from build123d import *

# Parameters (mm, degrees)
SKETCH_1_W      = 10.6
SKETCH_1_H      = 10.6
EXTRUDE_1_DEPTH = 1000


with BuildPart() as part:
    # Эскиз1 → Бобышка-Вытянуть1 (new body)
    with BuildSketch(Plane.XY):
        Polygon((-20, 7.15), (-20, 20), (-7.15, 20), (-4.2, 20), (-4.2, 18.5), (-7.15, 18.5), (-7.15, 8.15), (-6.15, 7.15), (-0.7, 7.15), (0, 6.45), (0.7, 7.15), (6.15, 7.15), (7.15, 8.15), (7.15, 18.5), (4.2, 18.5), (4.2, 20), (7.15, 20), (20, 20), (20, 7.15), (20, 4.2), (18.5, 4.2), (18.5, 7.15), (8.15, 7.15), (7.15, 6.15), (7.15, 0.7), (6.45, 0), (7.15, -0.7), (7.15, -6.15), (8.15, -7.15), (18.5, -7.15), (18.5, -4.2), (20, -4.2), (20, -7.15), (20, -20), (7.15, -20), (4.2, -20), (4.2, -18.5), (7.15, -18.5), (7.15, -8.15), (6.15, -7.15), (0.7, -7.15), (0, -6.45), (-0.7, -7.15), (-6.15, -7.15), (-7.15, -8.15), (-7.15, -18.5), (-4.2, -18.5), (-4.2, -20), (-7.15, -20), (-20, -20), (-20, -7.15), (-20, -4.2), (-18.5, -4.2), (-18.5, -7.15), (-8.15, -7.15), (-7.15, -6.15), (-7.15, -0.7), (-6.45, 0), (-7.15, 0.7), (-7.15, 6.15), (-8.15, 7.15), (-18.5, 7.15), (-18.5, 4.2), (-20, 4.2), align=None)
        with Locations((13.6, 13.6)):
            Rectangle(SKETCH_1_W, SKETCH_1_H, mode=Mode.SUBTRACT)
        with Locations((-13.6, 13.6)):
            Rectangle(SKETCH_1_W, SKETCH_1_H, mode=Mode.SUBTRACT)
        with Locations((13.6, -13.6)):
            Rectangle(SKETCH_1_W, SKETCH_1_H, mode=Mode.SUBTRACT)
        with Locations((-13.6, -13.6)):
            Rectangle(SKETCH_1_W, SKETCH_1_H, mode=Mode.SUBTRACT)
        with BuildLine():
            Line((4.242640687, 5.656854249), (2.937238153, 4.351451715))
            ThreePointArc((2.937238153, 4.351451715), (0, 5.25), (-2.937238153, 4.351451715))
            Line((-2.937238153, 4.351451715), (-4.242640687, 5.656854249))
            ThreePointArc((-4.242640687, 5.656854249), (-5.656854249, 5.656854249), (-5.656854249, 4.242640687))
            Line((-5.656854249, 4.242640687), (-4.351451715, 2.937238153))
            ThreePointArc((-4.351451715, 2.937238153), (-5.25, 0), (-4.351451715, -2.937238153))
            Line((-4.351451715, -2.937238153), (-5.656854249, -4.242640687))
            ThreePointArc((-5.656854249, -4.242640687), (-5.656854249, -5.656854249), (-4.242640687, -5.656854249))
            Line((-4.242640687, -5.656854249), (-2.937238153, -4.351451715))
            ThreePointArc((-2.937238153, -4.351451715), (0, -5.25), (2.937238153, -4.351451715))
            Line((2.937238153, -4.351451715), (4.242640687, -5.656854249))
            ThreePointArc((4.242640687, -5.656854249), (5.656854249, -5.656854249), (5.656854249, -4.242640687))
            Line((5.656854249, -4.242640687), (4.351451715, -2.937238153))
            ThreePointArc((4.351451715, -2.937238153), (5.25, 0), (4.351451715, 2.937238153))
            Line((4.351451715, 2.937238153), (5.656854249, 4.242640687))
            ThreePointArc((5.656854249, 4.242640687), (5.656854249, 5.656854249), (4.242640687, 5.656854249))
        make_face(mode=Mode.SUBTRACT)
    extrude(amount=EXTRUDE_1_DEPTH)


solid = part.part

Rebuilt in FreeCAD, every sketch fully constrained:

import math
import FreeCAD as App
import Part
import Sketcher

V = App.Vector
Q = App.Units.Quantity

doc = App.newDocument("Part")
body = doc.addObject("PartDesign::Body", "Body")

# Sketch on XY plane
sketch1 = body.newObject("Sketcher::SketchObject", "Sketch")
sketch1.AttachmentSupport = (doc.getObject("XY_Plane"), [""])
sketch1.MapMode = "FlatFace"
sketch1.addGeometry([
    Part.LineSegment(V(-20, 20, 0), V(-20, 4.2, 0)),  # 0
    Part.LineSegment(V(-20, 4.2, 0), V(-18.5, 4.2, 0)),  # 1
    Part.LineSegment(V(-18.5, 4.2, 0), V(-18.5, 7.2, 0)),  # 2
    Part.LineSegment(V(-18.5, 7.2, 0), V(-8.2, 7.2, 0)),  # 3
    Part.LineSegment(V(-8.2, 7.2, 0), V(-7.2, 6.2, 0)),  # 4
    Part.LineSegment(V(-7.2, 6.2, 0), V(-7.2, 0.7, 0)),  # 5
    Part.LineSegment(V(-7.2, 0.7, 0), V(-6.5, 0, 0)),  # 6
    Part.LineSegment(V(-6.5, 0, 0), V(-7.2, -0.7, 0)),  # 7
    Part.LineSegment(V(-7.2, -0.7, 0), V(-7.2, -6.2, 0)),  # 8
    Part.LineSegment(V(-7.2, -6.2, 0), V(-8.2, -7.2, 0)),  # 9
    Part.LineSegment(V(-8.2, -7.2, 0), V(-18.5, -7.2, 0)),  # 10
    Part.LineSegment(V(-18.5, -7.2, 0), V(-18.5, -4.2, 0)),  # 11
    Part.LineSegment(V(-18.5, -4.2, 0), V(-20, -4.2, 0)),  # 12
    Part.LineSegment(V(-20, -4.2, 0), V(-20, -20, 0)),  # 13
    Part.LineSegment(V(-20, -20, 0), V(-4.2, -20, 0)),  # 14
    Part.LineSegment(V(-4.2, -20, 0), V(-4.2, -18.5, 0)),  # 15
    Part.LineSegment(V(-4.2, -18.5, 0), V(-7.2, -18.5, 0)),  # 16
    Part.LineSegment(V(-7.2, -18.5, 0), V(-7.2, -8.2, 0)),  # 17
    Part.LineSegment(V(-7.2, -8.2, 0), V(-6.2, -7.2, 0)),  # 18
    Part.LineSegment(V(-6.2, -7.2, 0), V(-0.7, -7.2, 0)),  # 19
    Part.LineSegment(V(-0.7, -7.2, 0), V(0, -6.5, 0)),  # 20
    Part.LineSegment(V(0, -6.5, 0), V(0.7, -7.2, 0)),  # 21
    Part.LineSegment(V(0.7, -7.2, 0), V(6.2, -7.2, 0)),  # 22
    Part.LineSegment(V(6.2, -7.2, 0), V(7.2, -8.2, 0)),  # 23
    Part.LineSegment(V(7.2, -8.2, 0), V(7.2, -18.5, 0)),  # 24
    Part.LineSegment(V(7.2, -18.5, 0), V(4.2, -18.5, 0)),  # 25
    Part.LineSegment(V(4.2, -18.5, 0), V(4.2, -20, 0)),  # 26
    Part.LineSegment(V(4.2, -20, 0), V(20, -20, 0)),  # 27
    Part.LineSegment(V(20, -20, 0), V(20, -4.2, 0)),  # 28
    Part.LineSegment(V(20, -4.2, 0), V(18.5, -4.2, 0)),  # 29
    Part.LineSegment(V(18.5, -4.2, 0), V(18.5, -7.2, 0)),  # 30
    Part.LineSegment(V(18.5, -7.2, 0), V(8.2, -7.2, 0)),  # 31
    Part.LineSegment(V(8.2, -7.2, 0), V(7.2, -6.2, 0)),  # 32
    Part.LineSegment(V(7.2, -6.2, 0), V(7.2, -0.7, 0)),  # 33
    Part.LineSegment(V(7.2, -0.7, 0), V(6.5, 0, 0)),  # 34
    Part.LineSegment(V(6.5, 0, 0), V(7.2, 0.7, 0)),  # 35
    Part.LineSegment(V(7.2, 0.7, 0), V(7.2, 6.2, 0)),  # 36
    Part.LineSegment(V(7.2, 6.2, 0), V(8.2, 7.2, 0)),  # 37
    Part.LineSegment(V(8.2, 7.2, 0), V(18.5, 7.2, 0)),  # 38
    Part.LineSegment(V(18.5, 7.2, 0), V(18.5, 4.2, 0)),  # 39
    Part.LineSegment(V(18.5, 4.2, 0), V(20, 4.2, 0)),  # 40
    Part.LineSegment(V(20, 4.2, 0), V(20, 20, 0)),  # 41
    Part.LineSegment(V(20, 20, 0), V(4.2, 20, 0)),  # 42
    Part.LineSegment(V(4.2, 20, 0), V(4.2, 18.5, 0)),  # 43
    Part.LineSegment(V(4.2, 18.5, 0), V(7.2, 18.5, 0)),  # 44
    Part.LineSegment(V(7.2, 18.5, 0), V(7.2, 8.2, 0)),  # 45
    Part.LineSegment(V(7.2, 8.2, 0), V(6.2, 7.2, 0)),  # 46
    Part.LineSegment(V(6.2, 7.2, 0), V(0.7, 7.2, 0)),  # 47
    Part.LineSegment(V(0.7, 7.2, 0), V(0, 6.5, 0)),  # 48
    Part.LineSegment(V(0, 6.5, 0), V(-0.7, 7.2, 0)),  # 49
    Part.LineSegment(V(-0.7, 7.2, 0), V(-6.2, 7.2, 0)),  # 50
    Part.LineSegment(V(-6.2, 7.2, 0), V(-7.2, 8.2, 0)),  # 51
    Part.LineSegment(V(-7.2, 8.2, 0), V(-7.2, 18.5, 0)),  # 52
    Part.LineSegment(V(-7.2, 18.5, 0), V(-4.2, 18.5, 0)),  # 53
    Part.LineSegment(V(-4.2, 18.5, 0), V(-4.2, 20, 0)),  # 54
    Part.LineSegment(V(-4.2, 20, 0), V(-20, 20, 0)),  # 55
    Part.LineSegment(V(8.3, -18.9, 0), V(8.3, -8.3, 0)),  # 56
    Part.LineSegment(V(8.3, -8.3, 0), V(18.9, -8.3, 0)),  # 57
    Part.LineSegment(V(18.9, -8.3, 0), V(18.9, -18.9, 0)),  # 58
    Part.LineSegment(V(18.9, -18.9, 0), V(8.3, -18.9, 0)),  # 59
    Part.LineSegment(V(-18.9, -18.9, 0), V(-18.9, -8.3, 0)),  # 60
    Part.LineSegment(V(-18.9, -8.3, 0), V(-8.3, -8.3, 0)),  # 61
    Part.LineSegment(V(-8.3, -8.3, 0), V(-8.3, -18.9, 0)),  # 62
    Part.LineSegment(V(-8.3, -18.9, 0), V(-18.9, -18.9, 0)),  # 63
    Part.LineSegment(V(8.3, 8.3, 0), V(8.3, 18.9, 0)),  # 64
    Part.LineSegment(V(8.3, 18.9, 0), V(18.9, 18.9, 0)),  # 65
    Part.LineSegment(V(18.9, 18.9, 0), V(18.9, 8.3, 0)),  # 66
    Part.LineSegment(V(18.9, 8.3, 0), V(8.3, 8.3, 0)),  # 67
    Part.ArcOfCircle(Part.Circle(V(4.9, 4.9, 0), V(0, 0, 1), 1), math.radians(-45), math.radians(135)),  # 68
    Part.LineSegment(V(5.7, 4.2, 0), V(4.4, 2.9, 0)),  # 69
    Part.ArcOfCircle(Part.Circle(V(0, 0, 0), V(0, 0, 1), 5.2), math.radians(-34), math.radians(34)),  # 70
    Part.LineSegment(V(4.4, -2.9, 0), V(5.7, -4.2, 0)),  # 71
    Part.ArcOfCircle(Part.Circle(V(4.9, -4.9, 0), V(0, 0, 1), 1), math.radians(-135), math.radians(45)),  # 72
    Part.LineSegment(V(4.2, -5.7, 0), V(2.9, -4.4, 0)),  # 73
    Part.ArcOfCircle(Part.Circle(V(0, 0, 0), V(0, 0, 1), 5.2), math.radians(-124), math.radians(-56)),  # 74
    Part.LineSegment(V(-2.9, -4.4, 0), V(-4.2, -5.7, 0)),  # 75
    Part.ArcOfCircle(Part.Circle(V(-4.9, -4.9, 0), V(0, 0, 1), 1), math.radians(135), math.radians(315)),  # 76
    Part.LineSegment(V(-5.7, -4.2, 0), V(-4.4, -2.9, 0)),  # 77
    Part.ArcOfCircle(Part.Circle(V(0, 0, 0), V(0, 0, 1), 5.2), math.radians(146), math.radians(214)),  # 78
    Part.LineSegment(V(-4.4, 2.9, 0), V(-5.7, 4.2, 0)),  # 79
    Part.ArcOfCircle(Part.Circle(V(-4.9, 4.9, 0), V(0, 0, 1), 1), math.radians(45), math.radians(225)),  # 80
    Part.LineSegment(V(-4.2, 5.7, 0), V(-2.9, 4.4, 0)),  # 81
    Part.ArcOfCircle(Part.Circle(V(0, 0, 0), V(0, 0, 1), 5.2), math.radians(56), math.radians(124)),  # 82
    Part.LineSegment(V(2.9, 4.4, 0), V(4.2, 5.7, 0)),  # 83
    Part.LineSegment(V(-18.9, 8.3, 0), V(-18.9, 18.9, 0)),  # 84
    Part.LineSegment(V(-18.9, 18.9, 0), V(-8.3, 18.9, 0)),  # 85
    Part.LineSegment(V(-8.3, 18.9, 0), V(-8.3, 8.3, 0)),  # 86
    Part.LineSegment(V(-8.3, 8.3, 0), V(-18.9, 8.3, 0)),  # 87
], False)
sketch1.addConstraint([
    Sketcher.Constraint("Coincident", 0, 2, 1, 1),
    Sketcher.Constraint("Coincident", 1, 2, 2, 1),
    Sketcher.Constraint("Coincident", 2, 2, 3, 1),
    Sketcher.Constraint("Coincident", 3, 2, 4, 1),
    Sketcher.Constraint("Coincident", 4, 2, 5, 1),
    Sketcher.Constraint("Coincident", 5, 2, 6, 1),
    Sketcher.Constraint("Coincident", 6, 2, 7, 1),
    Sketcher.Constraint("Coincident", 7, 2, 8, 1),
    Sketcher.Constraint("Coincident", 8, 2, 9, 1),
    Sketcher.Constraint("Coincident", 9, 2, 10, 1),
    Sketcher.Constraint("Coincident", 10, 2, 11, 1),
    Sketcher.Constraint("Coincident", 11, 2, 12, 1),
    Sketcher.Constraint("Coincident", 12, 2, 13, 1),
    Sketcher.Constraint("Coincident", 13, 2, 14, 1),
    Sketcher.Constraint("Coincident", 14, 2, 15, 1),
    Sketcher.Constraint("Coincident", 15, 2, 16, 1),
    Sketcher.Constraint("Coincident", 16, 2, 17, 1),
    Sketcher.Constraint("Coincident", 17, 2, 18, 1),
    Sketcher.Constraint("Coincident", 18, 2, 19, 1),
    Sketcher.Constraint("Coincident", 19, 2, 20, 1),
    Sketcher.Constraint("Coincident", 20, 2, 21, 1),
    Sketcher.Constraint("Coincident", 21, 2, 22, 1),
    Sketcher.Constraint("Coincident", 22, 2, 23, 1),
    Sketcher.Constraint("Coincident", 23, 2, 24, 1),
    Sketcher.Constraint("Coincident", 24, 2, 25, 1),
    Sketcher.Constraint("Coincident", 25, 2, 26, 1),
    Sketcher.Constraint("Coincident", 26, 2, 27, 1),
    Sketcher.Constraint("Coincident", 27, 2, 28, 1),
    Sketcher.Constraint("Coincident", 28, 2, 29, 1),
    Sketcher.Constraint("Coincident", 29, 2, 30, 1),
    Sketcher.Constraint("Coincident", 30, 2, 31, 1),
    Sketcher.Constraint("Coincident", 31, 2, 32, 1),
    Sketcher.Constraint("Coincident", 32, 2, 33, 1),
    Sketcher.Constraint("Coincident", 33, 2, 34, 1),
    Sketcher.Constraint("Coincident", 34, 2, 35, 1),
    Sketcher.Constraint("Coincident", 35, 2, 36, 1),
    Sketcher.Constraint("Coincident", 36, 2, 37, 1),
    Sketcher.Constraint("Coincident", 37, 2, 38, 1),
    Sketcher.Constraint("Coincident", 38, 2, 39, 1),
    Sketcher.Constraint("Coincident", 39, 2, 40, 1),
    Sketcher.Constraint("Coincident", 40, 2, 41, 1),
    Sketcher.Constraint("Coincident", 41, 2, 42, 1),
    Sketcher.Constraint("Coincident", 42, 2, 43, 1),
    Sketcher.Constraint("Coincident", 43, 2, 44, 1),
    Sketcher.Constraint("Coincident", 44, 2, 45, 1),
    Sketcher.Constraint("Coincident", 45, 2, 46, 1),
    Sketcher.Constraint("Coincident", 46, 2, 47, 1),
    Sketcher.Constraint("Coincident", 47, 2, 48, 1),
    Sketcher.Constraint("Coincident", 48, 2, 49, 1),
    Sketcher.Constraint("Coincident", 49, 2, 50, 1),
    Sketcher.Constraint("Coincident", 50, 2, 51, 1),
    Sketcher.Constraint("Coincident", 51, 2, 52, 1),
    Sketcher.Constraint("Coincident", 52, 2, 53, 1),
    Sketcher.Constraint("Coincident", 53, 2, 54, 1),
    Sketcher.Constraint("Coincident", 54, 2, 55, 1),
    Sketcher.Constraint("Coincident", 55, 2, 0, 1),
    Sketcher.Constraint("Coincident", 56, 2, 57, 1),
    Sketcher.Constraint("Coincident", 57, 2, 58, 1),
    Sketcher.Constraint("Coincident", 58, 2, 59, 1),
    Sketcher.Constraint("Coincident", 59, 2, 56, 1),
    Sketcher.Constraint("Coincident", 60, 2, 61, 1),
    Sketcher.Constraint("Coincident", 61, 2, 62, 1),
    Sketcher.Constraint("Coincident", 62, 2, 63, 1),
    Sketcher.Constraint("Coincident", 63, 2, 60, 1),
    Sketcher.Constraint("Coincident", 64, 2, 65, 1),
    Sketcher.Constraint("Coincident", 65, 2, 66, 1),
    Sketcher.Constraint("Coincident", 66, 2, 67, 1),
    Sketcher.Constraint("Coincident", 67, 2, 64, 1),
    Sketcher.Constraint("Tangent", 68, 1, 69, 1),
    Sketcher.Constraint("Coincident", 69, 2, 70, 2),
    Sketcher.Constraint("Coincident", 70, 1, 71, 1),
    Sketcher.Constraint("Tangent", 71, 2, 72, 2),
    Sketcher.Constraint("Tangent", 72, 1, 73, 1),
    Sketcher.Constraint("Coincident", 73, 2, 74, 2),
    Sketcher.Constraint("Coincident", 74, 1, 75, 1),
    Sketcher.Constraint("Tangent", 75, 2, 76, 2),
    Sketcher.Constraint("Tangent", 76, 1, 77, 1),
    Sketcher.Constraint("Coincident", 77, 2, 78, 2),
    Sketcher.Constraint("Coincident", 78, 1, 79, 1),
    Sketcher.Constraint("Tangent", 79, 2, 80, 2),
    Sketcher.Constraint("Tangent", 80, 1, 81, 1),
    Sketcher.Constraint("Coincident", 81, 2, 82, 2),
    Sketcher.Constraint("Coincident", 82, 1, 83, 1),
    Sketcher.Constraint("Tangent", 83, 2, 68, 2),
    Sketcher.Constraint("Coincident", 84, 2, 85, 1),
    Sketcher.Constraint("Coincident", 85, 2, 86, 1),
    Sketcher.Constraint("Coincident", 86, 2, 87, 1),
    Sketcher.Constraint("Coincident", 87, 2, 84, 1),
    Sketcher.Constraint("Vertical", 0),
    Sketcher.Constraint("Horizontal", 1),
    Sketcher.Constraint("Vertical", 2),
    Sketcher.Constraint("Horizontal", 3),
    Sketcher.Constraint("Vertical", 5),
    Sketcher.Constraint("Vertical", 8),
    Sketcher.Constraint("Horizontal", 10),
    Sketcher.Constraint("Vertical", 11),
    Sketcher.Constraint("Horizontal", 12),
    Sketcher.Constraint("Vertical", 13),
    Sketcher.Constraint("Horizontal", 14),
    Sketcher.Constraint("Vertical", 15),
    Sketcher.Constraint("Horizontal", 16),
    Sketcher.Constraint("Vertical", 17),
    Sketcher.Constraint("Horizontal", 19),
    Sketcher.Constraint("Horizontal", 22),
    Sketcher.Constraint("Vertical", 24),
    Sketcher.Constraint("Horizontal", 25),
    Sketcher.Constraint("Vertical", 26),
    Sketcher.Constraint("Horizontal", 27),
    Sketcher.Constraint("Vertical", 28),
    Sketcher.Constraint("Horizontal", 29),
    Sketcher.Constraint("Vertical", 30),
    Sketcher.Constraint("Horizontal", 31),
    Sketcher.Constraint("Vertical", 33),
    Sketcher.Constraint("Vertical", 36),
    Sketcher.Constraint("Horizontal", 38),
    Sketcher.Constraint("Vertical", 39),
    Sketcher.Constraint("Horizontal", 40),
    Sketcher.Constraint("Vertical", 41),
    Sketcher.Constraint("Horizontal", 42),
    Sketcher.Constraint("Vertical", 43),
    Sketcher.Constraint("Horizontal", 44),
    Sketcher.Constraint("Vertical", 45),
    Sketcher.Constraint("Horizontal", 47),
    Sketcher.Constraint("Horizontal", 50),
    Sketcher.Constraint("Vertical", 52),
    Sketcher.Constraint("Horizontal", 53),
    Sketcher.Constraint("Vertical", 54),
    Sketcher.Constraint("Horizontal", 55),
    Sketcher.Constraint("Vertical", 56),
    Sketcher.Constraint("Horizontal", 57),
    Sketcher.Constraint("Vertical", 58),
    Sketcher.Constraint("Horizontal", 59),
    Sketcher.Constraint("Vertical", 60),
    Sketcher.Constraint("Horizontal", 61),
    Sketcher.Constraint("Vertical", 62),
    Sketcher.Constraint("Horizontal", 63),
    Sketcher.Constraint("Vertical", 64),
    Sketcher.Constraint("Horizontal", 65),
    Sketcher.Constraint("Vertical", 66),
    Sketcher.Constraint("Horizontal", 67),
    Sketcher.Constraint("Vertical", 84),
    Sketcher.Constraint("Horizontal", 85),
    Sketcher.Constraint("Vertical", 86),
    Sketcher.Constraint("Horizontal", 87),
    Sketcher.Constraint("Coincident", 70, 3, -1, 1),
    Sketcher.Constraint("Coincident", 74, 3, -1, 1),
    Sketcher.Constraint("Coincident", 78, 3, -1, 1),
    Sketcher.Constraint("Coincident", 82, 3, -1, 1),
    Sketcher.Constraint("Equal", 68, 72),
    Sketcher.Constraint("Equal", 70, 74),
    Sketcher.Constraint("Equal", 72, 76),
    Sketcher.Constraint("Equal", 74, 78),
    Sketcher.Constraint("Equal", 76, 80),
    Sketcher.Constraint("Equal", 78, 82),
    Sketcher.Constraint("Symmetric", 68, 3, 76, 3, -1, 1),
    Sketcher.Constraint("Symmetric", 72, 3, 80, 3, -1, 1),
    Sketcher.Constraint("Symmetric", 0, 2, 28, 2, -1, 1),
    Sketcher.Constraint("Symmetric", 2, 2, 30, 2, -1, 1),
    Sketcher.Constraint("Symmetric", 4, 2, 32, 2, -1, 1),
    Sketcher.Constraint("Symmetric", 6, 2, 34, 2, -1, 1),
    Sketcher.Constraint("Symmetric", 7, 2, 35, 2, -1, 1),
    Sketcher.Constraint("Symmetric", 9, 2, 37, 2, -1, 1),
    Sketcher.Constraint("Symmetric", 11, 2, 39, 2, -1, 1),
    Sketcher.Constraint("Symmetric", 13, 2, 41, 2, -1, 1),
    Sketcher.Constraint("Symmetric", 15, 2, 43, 2, -1, 1),
    Sketcher.Constraint("Symmetric", 17, 2, 45, 2, -1, 1),
    Sketcher.Constraint("Symmetric", 18, 2, 46, 2, -1, 1),
    Sketcher.Constraint("Symmetric", 20, 2, 48, 2, -1, 1),
    Sketcher.Constraint("Symmetric", 21, 2, 49, 2, -1, 1),
    Sketcher.Constraint("Symmetric", 23, 2, 51, 2, -1, 1),
    Sketcher.Constraint("Symmetric", 25, 2, 53, 2, -1, 1),
    Sketcher.Constraint("Symmetric", 62, 2, 64, 2, -1, 1),
    Sketcher.Constraint("Symmetric", 60, 2, 66, 2, -1, 1),
    Sketcher.Constraint("Symmetric", 58, 2, 84, 2, -1, 1),
    Sketcher.Constraint("Symmetric", 56, 2, 86, 2, -1, 1),
    Sketcher.Constraint("Symmetric", 72, 3, 76, 3, -2),
    Sketcher.Constraint("Symmetric", 19, 2, 21, 2, -2),
    Sketcher.Constraint("Symmetric", 17, 2, 23, 2, -2),
    Sketcher.Constraint("Symmetric", 15, 2, 25, 2, -2),
    Sketcher.Constraint("Symmetric", 13, 2, 27, 2, -2),
    Sketcher.Constraint("Symmetric", 11, 2, 29, 2, -2),
    Sketcher.Constraint("Symmetric", 9, 2, 31, 2, -2),
    Sketcher.Constraint("Symmetric", 8, 2, 32, 2, -2),
    Sketcher.Constraint("Symmetric", 57, 2, 60, 2, -2),
    Sketcher.Constraint("Symmetric", 59, 2, 62, 2, -2),
    Sketcher.Constraint("PointOnObject", 6, 2, -1),
    Sketcher.Constraint("PointOnObject", 20, 2, -2),
    Sketcher.Constraint("Parallel", 4, 6),
    Sketcher.Constraint("Perpendicular", 6, 7),
    Sketcher.Constraint("Parallel", 7, 9),
    Sketcher.Constraint("Parallel", 9, 18),
    Sketcher.Constraint("Parallel", 18, 20),
    Sketcher.Constraint("Perpendicular", 20, 21),
    Sketcher.Constraint("Parallel", 21, 23),
    Sketcher.Constraint("Parallel", 32, 34),
    Sketcher.Constraint("Parallel", 35, 37),
    Sketcher.Constraint("Parallel", 46, 48),
    Sketcher.Constraint("Parallel", 49, 51),
    Sketcher.Constraint("Perpendicular", 51, 69),
    Sketcher.Constraint("Perpendicular", 69, 71),
    Sketcher.Constraint("Parallel", 71, 73),
    Sketcher.Constraint("Perpendicular", 73, 75),
    Sketcher.Constraint("Parallel", 75, 77),
    Sketcher.Constraint("Perpendicular", 77, 79),
    Sketcher.Constraint("Parallel", 79, 81),
    Sketcher.Constraint("Perpendicular", 81, 83),
    Sketcher.Constraint("Horizontal", 10, 2, 18, 2),
    Sketcher.Constraint("Horizontal", 42, 2, 54, 2),
    Sketcher.Constraint("Vertical", 8, 2, 16, 2),
    Sketcher.Constraint("Equal", 55, 0),
    Sketcher.Constraint("Equal", 53, 2),
    Sketcher.Constraint("Equal", 50, 5),
    Sketcher.Constraint("Equal", 40, 15),
    Sketcher.Constraint("Equal", 38, 17),
    Sketcher.Constraint("Equal", 87, 56),
    Sketcher.Constraint("Equal", 7, 20),
    Sketcher.Constraint("Equal", 71, 73),
    Sketcher.Constraint("Radius", 68, Q("1 mm")),
    Sketcher.Constraint("Radius", 70, Q("5.25 mm")),
    Sketcher.Constraint("DistanceX", 1, 1, 1, 2, Q("1.5 mm")),
    Sketcher.Constraint("DistanceX", 14, 1, 14, 2, Q("15.8 mm")),
    Sketcher.Constraint("DistanceX", 57, 1, 57, 2, Q("10.6 mm")),
    Sketcher.Constraint("DistanceX", 0, 2, -1, 1, Q("20 mm")),
    Sketcher.Constraint("DistanceX", 3, 1, 3, 2, Q("10.35 mm")),
    Sketcher.Constraint("DistanceX", 16, 2, 16, 1, Q("2.95 mm")),
    Sketcher.Constraint("DistanceX", 19, 1, 19, 2, Q("5.45 mm")),
    Sketcher.Constraint("DistanceX", -1, 1, 56, 2, Q("8.3 mm")),
    Sketcher.Constraint("DistanceY", 56, 2, -1, 1, Q("8.3 mm")),
    Sketcher.Constraint("DistanceY", -1, 1, 68, 1, Q("4.242641 mm")),
])
pad1 = body.newObject("PartDesign::Pad", "Pad")
pad1.Profile = sketch1
pad1.Length = 1000

doc.recompute()
